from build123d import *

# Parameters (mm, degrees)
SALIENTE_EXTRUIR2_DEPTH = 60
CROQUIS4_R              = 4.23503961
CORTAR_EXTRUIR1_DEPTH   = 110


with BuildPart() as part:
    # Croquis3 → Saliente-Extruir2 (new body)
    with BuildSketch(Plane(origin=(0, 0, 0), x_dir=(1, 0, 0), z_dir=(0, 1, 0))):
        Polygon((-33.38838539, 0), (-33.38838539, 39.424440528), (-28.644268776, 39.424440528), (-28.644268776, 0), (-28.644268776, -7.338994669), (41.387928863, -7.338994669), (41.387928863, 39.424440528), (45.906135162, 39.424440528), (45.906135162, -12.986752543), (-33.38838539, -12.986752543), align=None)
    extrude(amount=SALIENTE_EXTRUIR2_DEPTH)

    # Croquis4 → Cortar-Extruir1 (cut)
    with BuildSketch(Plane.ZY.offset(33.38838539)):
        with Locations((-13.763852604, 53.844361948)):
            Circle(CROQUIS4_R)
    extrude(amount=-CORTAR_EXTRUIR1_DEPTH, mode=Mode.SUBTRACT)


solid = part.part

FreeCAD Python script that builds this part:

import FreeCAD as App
import Part
import Sketcher


def add_polygon(sketch, points):
    """Adds a closed chain of lines whose ends are joined by coincident constraints."""
    first, n = sketch.GeometryCount, len(points)
    for a, b in zip(points, points[1:] + points[:1]):
        sketch.addGeometry(Part.LineSegment(App.Vector(*a, 0), App.Vector(*b, 0)), False)
    for i in range(n):
        sketch.addConstraint(Sketcher.Constraint("Coincident", first + i, 2, first + (i + 1) % n, 1))

doc = App.newDocument("Part")
body = doc.addObject("PartDesign::Body", "Body")

# Sketch on XZ plane
sketch1 = body.newObject("Sketcher::SketchObject", "Sketch")
sketch1.AttachmentSupport = (doc.getObject("XZ_Plane"), [""])
sketch1.MapMode = "FlatFace"
add_polygon(sketch1, [(-33.388385, -39.424441), (-33.388385, 12.986753), (45.906135, 12.986753), (45.906135, -39.424441), (41.387929, -39.424441), (41.387929, 7.338995), (-28.644269, 7.338995), (-28.644269, -39.424441)])  # lines 0-7
sketch1.addConstraint(Sketcher.Constraint("Vertical", 0))
sketch1.addConstraint(Sketcher.Constraint("Horizontal", 1))
sketch1.addConstraint(Sketcher.Constraint("Vertical", 2))
sketch1.addConstraint(Sketcher.Constraint("Horizontal", 3))
sketch1.addConstraint(Sketcher.Constraint("Vertical", 4))
sketch1.addConstraint(Sketcher.Constraint("Horizontal", 5))
sketch1.addConstraint(Sketcher.Constraint("Vertical", 6))
sketch1.addConstraint(Sketcher.Constraint("Horizontal", 7))
sketch1.addConstraint(Sketcher.Constraint("Horizontal", 3, 2, 6, 2))
sketch1.addConstraint(Sketcher.Constraint("DistanceX", 1, 1, 1, 2, 79.294521))
sketch1.addConstraint(Sketcher.Constraint("DistanceX", 3, 2, 3, 1, 4.518206))
sketch1.addConstraint(Sketcher.Constraint("DistanceX", 5, 2, 5, 1, 70.032198))
sketch1.addConstraint(Sketcher.Constraint("DistanceY", 0, 1, 0, 2, 52.411193))
sketch1.addConstraint(Sketcher.Constraint("DistanceY", 4, 1, 4, 2, 46.763435))
sketch1.addConstraint(Sketcher.Constraint("DistanceY", 2, 2, -1, 1, 39.424441))
sketch1.addConstraint(Sketcher.Constraint("DistanceX", -1, 1, 3, 2, 41.387929))
pad1 = body.newObject("PartDesign::Pad", "Pad")
pad1.Profile = sketch1
pad1.Length = 60
pad1.Reversed = True

# Sketch on YZ plane
sketch2 = body.newObject("Sketcher::SketchObject", "Sketch001")
sketch2.AttachmentSupport = (doc.getObject("YZ_Plane"), [""])
sketch2.MapMode = "FlatFace"
sketch2.AttachmentOffset = App.Placement(App.Vector(0, 0, -33.388385), App.Rotation())
sketch2.addGeometry(Part.Circle(App.Vector(53.844362, -13.763853, 0), App.Vector(0, 0, 1), 4.23504), False)
sketch2.addConstraint(Sketcher.Constraint("Diameter", 0, 8.470079))
sketch2.addConstraint(Sketcher.Constraint("DistanceX", -1, 1, 0, 3, 53.844362))
sketch2.addConstraint(Sketcher.Constraint("DistanceY", 0, 3, -1, 1, 13.763853))
pocket1 = body.newObject("PartDesign::Pocket", "Pocket")
pocket1.Profile = sketch2
pocket1.Length = 110
pocket1.Reversed = True

doc.recompute()
